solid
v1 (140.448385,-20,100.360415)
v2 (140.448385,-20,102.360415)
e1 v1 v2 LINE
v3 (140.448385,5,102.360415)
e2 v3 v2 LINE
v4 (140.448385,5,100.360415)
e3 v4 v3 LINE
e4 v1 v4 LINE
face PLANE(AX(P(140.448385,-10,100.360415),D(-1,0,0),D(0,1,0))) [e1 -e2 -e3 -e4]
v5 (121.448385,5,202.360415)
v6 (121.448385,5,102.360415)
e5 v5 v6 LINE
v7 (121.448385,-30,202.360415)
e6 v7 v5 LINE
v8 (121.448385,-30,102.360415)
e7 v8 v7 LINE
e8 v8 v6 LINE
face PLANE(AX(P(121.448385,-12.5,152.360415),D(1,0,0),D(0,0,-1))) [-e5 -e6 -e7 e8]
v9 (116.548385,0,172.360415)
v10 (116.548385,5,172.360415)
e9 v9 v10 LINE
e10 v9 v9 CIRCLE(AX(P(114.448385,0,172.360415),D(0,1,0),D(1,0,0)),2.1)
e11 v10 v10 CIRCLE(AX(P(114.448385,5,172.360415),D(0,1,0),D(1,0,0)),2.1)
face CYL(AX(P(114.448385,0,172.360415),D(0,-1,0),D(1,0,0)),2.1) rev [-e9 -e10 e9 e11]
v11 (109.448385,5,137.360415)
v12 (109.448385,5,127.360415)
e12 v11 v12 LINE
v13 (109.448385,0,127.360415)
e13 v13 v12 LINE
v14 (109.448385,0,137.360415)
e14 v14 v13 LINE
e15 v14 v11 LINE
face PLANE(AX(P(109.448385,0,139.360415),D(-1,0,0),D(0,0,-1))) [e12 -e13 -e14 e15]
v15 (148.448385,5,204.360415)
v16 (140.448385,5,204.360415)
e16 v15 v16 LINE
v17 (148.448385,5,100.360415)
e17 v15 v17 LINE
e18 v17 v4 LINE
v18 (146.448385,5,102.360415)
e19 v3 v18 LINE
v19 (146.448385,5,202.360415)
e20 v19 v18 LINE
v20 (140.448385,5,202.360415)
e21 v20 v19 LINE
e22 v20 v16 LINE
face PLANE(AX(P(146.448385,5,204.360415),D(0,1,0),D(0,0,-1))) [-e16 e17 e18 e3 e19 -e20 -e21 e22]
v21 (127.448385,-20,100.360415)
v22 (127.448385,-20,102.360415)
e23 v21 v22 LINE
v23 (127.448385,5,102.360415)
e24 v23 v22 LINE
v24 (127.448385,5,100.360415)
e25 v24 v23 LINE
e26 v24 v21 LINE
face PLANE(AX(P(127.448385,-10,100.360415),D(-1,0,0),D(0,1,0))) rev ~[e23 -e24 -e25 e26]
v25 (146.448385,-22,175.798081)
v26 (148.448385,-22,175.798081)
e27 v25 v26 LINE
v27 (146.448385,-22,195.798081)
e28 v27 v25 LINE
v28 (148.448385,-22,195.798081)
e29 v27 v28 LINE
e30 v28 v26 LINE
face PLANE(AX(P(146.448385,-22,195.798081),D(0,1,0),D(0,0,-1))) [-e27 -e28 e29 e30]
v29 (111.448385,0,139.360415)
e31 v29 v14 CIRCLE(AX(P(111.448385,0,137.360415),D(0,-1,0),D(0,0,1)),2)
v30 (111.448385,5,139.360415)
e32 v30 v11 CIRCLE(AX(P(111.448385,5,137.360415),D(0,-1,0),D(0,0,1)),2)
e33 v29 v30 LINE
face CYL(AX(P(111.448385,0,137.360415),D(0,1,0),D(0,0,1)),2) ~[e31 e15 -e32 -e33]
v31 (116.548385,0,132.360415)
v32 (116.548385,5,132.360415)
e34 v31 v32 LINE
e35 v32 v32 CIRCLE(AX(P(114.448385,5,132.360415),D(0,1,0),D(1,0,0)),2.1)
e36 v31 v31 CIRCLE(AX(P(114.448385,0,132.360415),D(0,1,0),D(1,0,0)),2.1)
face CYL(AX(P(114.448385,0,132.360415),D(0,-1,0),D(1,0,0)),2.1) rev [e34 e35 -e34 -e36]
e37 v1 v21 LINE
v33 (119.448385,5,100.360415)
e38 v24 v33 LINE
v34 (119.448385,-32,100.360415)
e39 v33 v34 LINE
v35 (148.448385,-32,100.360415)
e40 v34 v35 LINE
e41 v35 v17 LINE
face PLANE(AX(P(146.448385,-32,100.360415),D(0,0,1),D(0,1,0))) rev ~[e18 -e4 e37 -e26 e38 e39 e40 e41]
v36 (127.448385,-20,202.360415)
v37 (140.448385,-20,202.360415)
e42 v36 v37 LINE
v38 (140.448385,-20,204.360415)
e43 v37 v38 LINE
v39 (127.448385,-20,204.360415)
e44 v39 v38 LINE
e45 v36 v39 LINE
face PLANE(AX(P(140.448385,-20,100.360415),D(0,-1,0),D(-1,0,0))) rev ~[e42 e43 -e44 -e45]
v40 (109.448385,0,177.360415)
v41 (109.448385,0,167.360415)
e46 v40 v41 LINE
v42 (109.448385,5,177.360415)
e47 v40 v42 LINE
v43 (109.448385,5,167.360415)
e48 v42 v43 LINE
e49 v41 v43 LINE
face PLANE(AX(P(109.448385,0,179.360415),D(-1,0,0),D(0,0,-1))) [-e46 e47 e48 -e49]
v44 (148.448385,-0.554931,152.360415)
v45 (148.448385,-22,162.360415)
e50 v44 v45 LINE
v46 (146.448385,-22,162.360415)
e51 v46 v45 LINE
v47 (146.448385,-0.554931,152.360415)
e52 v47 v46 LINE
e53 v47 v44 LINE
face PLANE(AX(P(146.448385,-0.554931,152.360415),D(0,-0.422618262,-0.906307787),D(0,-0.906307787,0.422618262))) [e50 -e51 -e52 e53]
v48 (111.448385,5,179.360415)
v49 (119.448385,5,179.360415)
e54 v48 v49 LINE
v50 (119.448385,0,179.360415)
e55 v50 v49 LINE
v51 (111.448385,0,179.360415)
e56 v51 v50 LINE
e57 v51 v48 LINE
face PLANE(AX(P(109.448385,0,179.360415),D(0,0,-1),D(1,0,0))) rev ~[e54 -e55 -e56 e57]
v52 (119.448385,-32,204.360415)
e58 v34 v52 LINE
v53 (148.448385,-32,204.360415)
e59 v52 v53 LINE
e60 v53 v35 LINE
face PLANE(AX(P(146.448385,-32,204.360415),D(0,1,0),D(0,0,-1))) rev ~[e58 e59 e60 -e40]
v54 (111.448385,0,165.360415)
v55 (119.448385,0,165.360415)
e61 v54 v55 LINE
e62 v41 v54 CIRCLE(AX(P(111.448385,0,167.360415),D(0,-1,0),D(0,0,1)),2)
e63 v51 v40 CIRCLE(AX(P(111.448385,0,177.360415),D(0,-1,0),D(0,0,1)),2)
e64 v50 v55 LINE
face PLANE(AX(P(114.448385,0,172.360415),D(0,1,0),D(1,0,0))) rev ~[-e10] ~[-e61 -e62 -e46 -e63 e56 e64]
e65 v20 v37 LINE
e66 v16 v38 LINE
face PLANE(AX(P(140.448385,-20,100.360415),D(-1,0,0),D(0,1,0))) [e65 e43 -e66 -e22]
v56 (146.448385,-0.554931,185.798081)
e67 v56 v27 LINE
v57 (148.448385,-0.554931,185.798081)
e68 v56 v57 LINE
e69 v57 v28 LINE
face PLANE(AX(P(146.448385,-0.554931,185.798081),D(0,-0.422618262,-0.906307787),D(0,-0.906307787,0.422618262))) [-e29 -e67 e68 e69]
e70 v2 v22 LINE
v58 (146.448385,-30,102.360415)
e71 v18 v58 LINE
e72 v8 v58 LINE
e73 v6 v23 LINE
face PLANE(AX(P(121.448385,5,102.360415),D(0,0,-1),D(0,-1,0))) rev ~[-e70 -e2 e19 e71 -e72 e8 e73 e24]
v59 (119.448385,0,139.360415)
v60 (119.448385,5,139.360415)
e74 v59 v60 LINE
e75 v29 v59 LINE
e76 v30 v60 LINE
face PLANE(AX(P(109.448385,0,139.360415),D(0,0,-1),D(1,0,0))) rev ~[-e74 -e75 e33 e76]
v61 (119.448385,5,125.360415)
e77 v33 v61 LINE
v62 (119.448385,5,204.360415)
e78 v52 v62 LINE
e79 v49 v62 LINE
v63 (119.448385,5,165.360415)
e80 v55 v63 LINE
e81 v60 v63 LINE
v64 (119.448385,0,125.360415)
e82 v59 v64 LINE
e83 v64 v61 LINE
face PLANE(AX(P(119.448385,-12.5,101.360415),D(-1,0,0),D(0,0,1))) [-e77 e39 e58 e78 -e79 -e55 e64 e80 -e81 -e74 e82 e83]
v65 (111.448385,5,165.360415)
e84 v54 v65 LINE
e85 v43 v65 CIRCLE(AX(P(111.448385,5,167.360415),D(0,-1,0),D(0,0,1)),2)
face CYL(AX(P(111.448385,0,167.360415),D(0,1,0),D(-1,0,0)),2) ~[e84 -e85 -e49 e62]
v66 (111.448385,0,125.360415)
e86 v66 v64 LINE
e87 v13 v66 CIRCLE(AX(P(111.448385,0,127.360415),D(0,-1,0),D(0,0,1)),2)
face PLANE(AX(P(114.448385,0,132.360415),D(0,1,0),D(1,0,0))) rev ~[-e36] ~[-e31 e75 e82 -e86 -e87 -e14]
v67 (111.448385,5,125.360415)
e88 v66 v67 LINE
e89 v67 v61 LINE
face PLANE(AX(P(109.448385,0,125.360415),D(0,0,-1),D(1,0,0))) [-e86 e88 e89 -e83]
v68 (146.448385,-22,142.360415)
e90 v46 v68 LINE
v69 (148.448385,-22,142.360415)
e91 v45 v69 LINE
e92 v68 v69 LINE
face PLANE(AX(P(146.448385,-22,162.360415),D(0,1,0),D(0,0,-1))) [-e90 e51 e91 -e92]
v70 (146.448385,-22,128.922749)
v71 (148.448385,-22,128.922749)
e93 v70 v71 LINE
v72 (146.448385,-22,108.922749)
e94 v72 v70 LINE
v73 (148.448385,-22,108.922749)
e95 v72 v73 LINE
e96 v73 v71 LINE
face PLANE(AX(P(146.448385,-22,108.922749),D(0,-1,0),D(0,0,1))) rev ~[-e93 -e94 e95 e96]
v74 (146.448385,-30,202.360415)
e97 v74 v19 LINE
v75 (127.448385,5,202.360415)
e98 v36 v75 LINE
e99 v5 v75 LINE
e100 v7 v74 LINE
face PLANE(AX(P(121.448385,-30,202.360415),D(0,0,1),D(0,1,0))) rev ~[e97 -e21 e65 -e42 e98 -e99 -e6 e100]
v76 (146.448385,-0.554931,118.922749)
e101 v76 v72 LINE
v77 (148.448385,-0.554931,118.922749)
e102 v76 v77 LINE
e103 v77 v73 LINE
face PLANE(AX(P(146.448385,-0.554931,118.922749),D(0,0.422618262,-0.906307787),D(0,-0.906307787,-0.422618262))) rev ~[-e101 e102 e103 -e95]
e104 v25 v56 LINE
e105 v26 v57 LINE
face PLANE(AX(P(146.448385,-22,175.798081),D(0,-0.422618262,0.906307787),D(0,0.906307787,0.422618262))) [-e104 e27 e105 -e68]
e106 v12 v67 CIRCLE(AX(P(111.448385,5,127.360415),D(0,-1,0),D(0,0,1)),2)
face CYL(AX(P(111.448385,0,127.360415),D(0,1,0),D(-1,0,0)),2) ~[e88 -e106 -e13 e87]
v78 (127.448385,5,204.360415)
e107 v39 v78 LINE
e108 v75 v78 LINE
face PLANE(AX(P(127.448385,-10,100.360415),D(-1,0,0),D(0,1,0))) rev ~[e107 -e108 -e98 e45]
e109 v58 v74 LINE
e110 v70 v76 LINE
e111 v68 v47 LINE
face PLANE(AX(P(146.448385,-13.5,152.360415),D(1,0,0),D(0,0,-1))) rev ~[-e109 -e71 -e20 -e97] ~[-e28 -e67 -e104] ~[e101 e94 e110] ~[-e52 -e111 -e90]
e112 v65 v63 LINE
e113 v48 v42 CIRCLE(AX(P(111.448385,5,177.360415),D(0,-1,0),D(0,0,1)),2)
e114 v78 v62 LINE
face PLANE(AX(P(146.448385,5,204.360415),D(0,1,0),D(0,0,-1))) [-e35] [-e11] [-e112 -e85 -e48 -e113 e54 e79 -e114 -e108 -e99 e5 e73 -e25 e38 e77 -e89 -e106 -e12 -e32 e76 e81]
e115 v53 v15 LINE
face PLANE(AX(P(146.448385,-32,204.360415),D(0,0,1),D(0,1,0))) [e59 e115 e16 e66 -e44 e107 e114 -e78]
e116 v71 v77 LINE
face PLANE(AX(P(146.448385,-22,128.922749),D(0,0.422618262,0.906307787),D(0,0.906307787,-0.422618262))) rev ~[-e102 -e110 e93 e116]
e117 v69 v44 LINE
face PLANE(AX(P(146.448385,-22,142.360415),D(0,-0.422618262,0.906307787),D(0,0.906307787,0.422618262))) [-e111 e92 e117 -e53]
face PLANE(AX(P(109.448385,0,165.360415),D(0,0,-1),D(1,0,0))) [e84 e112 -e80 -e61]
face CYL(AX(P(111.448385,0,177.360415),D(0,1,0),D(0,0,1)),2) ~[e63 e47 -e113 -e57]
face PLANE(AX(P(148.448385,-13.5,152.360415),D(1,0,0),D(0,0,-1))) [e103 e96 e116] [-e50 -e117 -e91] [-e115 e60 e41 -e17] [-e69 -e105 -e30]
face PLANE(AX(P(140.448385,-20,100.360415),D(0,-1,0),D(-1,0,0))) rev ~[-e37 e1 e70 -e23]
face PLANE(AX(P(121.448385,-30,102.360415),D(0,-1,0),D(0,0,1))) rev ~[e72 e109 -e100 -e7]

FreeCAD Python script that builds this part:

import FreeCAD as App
import Part
import Sketcher
from FreeCAD import Vector
Q = App.Units.Quantity


def edges_at(feature, points):
    """Names of the edges that pass closest to the given points."""
    edges = feature.Shape.Edges
    near = lambda p: min(range(len(edges)), key=lambda i: edges[i].distToShape(Part.Vertex(*p))[0])
    return sorted({f"Edge{near(p) + 1}" for p in points})


def add_polygon(sketch, points):
    """Adds a closed chain of lines whose ends are joined by coincident constraints."""
    first, n = sketch.GeometryCount, len(points)
    for a, b in zip(points, points[1:] + points[:1]):
        sketch.addGeometry(Part.LineSegment(App.Vector(*a, 0), App.Vector(*b, 0)), False)
    for i in range(n):
        sketch.addConstraint(Sketcher.Constraint("Coincident", first + i, 2, first + (i + 1) % n, 1))

doc = App.newDocument("Part")
body = doc.addObject("PartDesign::Body", "Body")

sketch1 = doc.addObject("Sketcher::SketchObject", "Sketch")
body.addObject(sketch1)
sketch1.AttachmentSupport = (doc.XZ_Plane, [""])
sketch1.MapMode = "FlatFace"
add_polygon(sketch1, [(109.448385, 125.360415), (109.448385, 139.360415), (119.448385, 139.360415), (119.448385, 125.360415)])
sketch1.addGeometry(Part.Circle(Vector(114.448385, 132.360415, 0), Vector(0, 0, 1), 2.1), False)
sketch1.addConstraint(Sketcher.Constraint("Vertical", 0))
sketch1.addConstraint(Sketcher.Constraint("Horizontal", 1))
sketch1.addConstraint(Sketcher.Constraint("Vertical", 2))
sketch1.addConstraint(Sketcher.Constraint("Horizontal", 3))
sketch1.addConstraint(Sketcher.Constraint("Diameter", 4, Q("4.2 mm")))
sketch1.addConstraint(Sketcher.Constraint("DistanceX", 1, 1, 1, 2, Q("10 mm")))
sketch1.addConstraint(Sketcher.Constraint("DistanceY", 0, 1, 0, 2, Q("14 mm")))
sketch1.addConstraint(Sketcher.Constraint("DistanceX", 0, 2, 4, 3, Q("5 mm")))
sketch1.addConstraint(Sketcher.Constraint("DistanceY", 4, 3, 0, 2, Q("7 mm")))
sketch1.addConstraint(Sketcher.Constraint("DistanceX", -1, 1, 4, 3, Q("114.448385 mm")))
sketch1.addConstraint(Sketcher.Constraint("DistanceY", -1, 1, 4, 3, Q("132.360415 mm")))
pad1 = doc.addObject("PartDesign::Pad", "Pad")
body.addObject(pad1)
pad1.Profile = sketch1
pad1.Length = 5
pad1.Reversed = True
body2 = doc.addObject("PartDesign::Body", "Body001")

sketch2 = doc.addObject("Sketcher::SketchObject", "Sketch001")
body2.addObject(sketch2)
sketch2.AttachmentSupport = (doc.getObject("XZ_Plane001"), [""])
sketch2.MapMode = "FlatFace"
add_polygon(sketch2, [(109.448385, 165.360415), (109.448385, 179.360415), (119.448385, 179.360415), (119.448385, 165.360415)])
sketch2.addGeometry(Part.Circle(Vector(114.448385, 172.360415, 0), Vector(0, 0, 1), 2.1), False)
sketch2.addConstraint(Sketcher.Constraint("Vertical", 0))
sketch2.addConstraint(Sketcher.Constraint("Horizontal", 1))
sketch2.addConstraint(Sketcher.Constraint("Vertical", 2))
sketch2.addConstraint(Sketcher.Constraint("Horizontal", 3))
sketch2.addConstraint(Sketcher.Constraint("Diameter", 4, Q("4.2 mm")))
sketch2.addConstraint(Sketcher.Constraint("DistanceX", 1, 1, 1, 2, Q("10 mm")))
sketch2.addConstraint(Sketcher.Constraint("DistanceY", 0, 1, 0, 2, Q("14 mm")))
sketch2.addConstraint(Sketcher.Constraint("DistanceX", 0, 2, 4, 3, Q("5 mm")))
sketch2.addConstraint(Sketcher.Constraint("DistanceY", 4, 3, 0, 2, Q("7 mm")))
sketch2.addConstraint(Sketcher.Constraint("DistanceX", -1, 1, 4, 3, Q("114.448385 mm")))
sketch2.addConstraint(Sketcher.Constraint("DistanceY", -1, 1, 4, 3, Q("172.360415 mm")))
pad2 = doc.addObject("PartDesign::Pad", "Pad001")
body2.addObject(pad2)
pad2.Profile = sketch2
pad2.Length = 5
pad2.Reversed = True
body.AllowCompound = True
doc.recompute()

boolean = doc.addObject("PartDesign::Boolean", "Boolean")
body.addObject(boolean)
boolean.Type = "Fuse"
boolean.addObjects([body2])

sketch3 = doc.addObject("Sketcher::SketchObject", "Sketch002")
body.addObject(sketch3)
sketch3.AttachmentSupport = (doc.YZ_Plane, [""])
sketch3.MapMode = "FlatFace"
sketch3.AttachmentOffset = App.Placement(Vector(0, 0, 119.448385), App.Rotation())
add_polygon(sketch3, [(5, 196.860415), (-34, 196.860415), (-34, 107.860415), (5, 107.860415)])
sketch3.addConstraint(Sketcher.Constraint("Horizontal", 0))
sketch3.addConstraint(Sketcher.Constraint("Vertical", 1))
sketch3.addConstraint(Sketcher.Constraint("Horizontal", 2))
sketch3.addConstraint(Sketcher.Constraint("Vertical", 3))
sketch3.addConstraint(Sketcher.Constraint("DistanceX", 0, 2, 0, 1, Q("39 mm")))
sketch3.addConstraint(Sketcher.Constraint("DistanceY", 1, 2, 1, 1, Q("89 mm")))
sketch3.addConstraint(Sketcher.Constraint("DistanceX", 0, 2, -1, 1, Q("34 mm")))
sketch3.addConstraint(Sketcher.Constraint("DistanceY", -1, 1, 0, 2, Q("196.860415 mm")))
pad3 = doc.addObject("PartDesign::Pad", "Pad002")
body.addObject(pad3)
pad3.Profile = sketch3
pad3.Length = 2

sketch4 = doc.addObject("Sketcher::SketchObject", "Sketch003")
body.addObject(sketch4)
sketch4.AttachmentSupport = (doc.YZ_Plane, [""])
sketch4.MapMode = "FlatFace"
sketch4.AttachmentOffset = App.Placement(Vector(0, 0, 121.448385), App.Rotation())
add_polygon(sketch4, [(5, 194.860415), (5, 196.860415), (-34, 196.860415), (-34, 107.860415), (5, 107.860415), (5, 109.860415), (-32, 109.860415), (-32, 194.860415)])
sketch4.addConstraint(Sketcher.Constraint("Vertical", 0))
sketch4.addConstraint(Sketcher.Constraint("Horizontal", 1))
sketch4.addConstraint(Sketcher.Constraint("Vertical", 2))
sketch4.addConstraint(Sketcher.Constraint("Horizontal", 3))
sketch4.addConstraint(Sketcher.Constraint("Vertical", 4))
sketch4.addConstraint(Sketcher.Constraint("Horizontal", 5))
sketch4.addConstraint(Sketcher.Constraint("Vertical", 6))
sketch4.addConstraint(Sketcher.Constraint("Horizontal", 7))
sketch4.addConstraint(Sketcher.Constraint("Vertical", 0, 2, 3, 2))
sketch4.addConstraint(Sketcher.Constraint("Equal", 0, 4))
sketch4.addConstraint(Sketcher.Constraint("DistanceX", 1, 2, 1, 1, Q("39 mm")))
sketch4.addConstraint(Sketcher.Constraint("DistanceX", 5, 2, 5, 1, Q("37 mm")))
sketch4.addConstraint(Sketcher.Constraint("DistanceY", 0, 1, 0, 2, Q("2 mm")))
sketch4.addConstraint(Sketcher.Constraint("DistanceY", 2, 2, 2, 1, Q("89 mm")))
sketch4.addConstraint(Sketcher.Constraint("DistanceX", -1, 1, 0, 2, Q("5 mm")))
sketch4.addConstraint(Sketcher.Constraint("DistanceY", -1, 1, 0, 2, Q("196.860415 mm")))
pad4 = doc.addObject("PartDesign::Pad", "Pad003")
body.addObject(pad4)
pad4.Profile = sketch4
pad4.Length = 32

sketch5 = doc.addObject("Sketcher::SketchObject", "Sketch004")
body.addObject(sketch5)
sketch5.AttachmentSupport = (doc.XZ_Plane, [""])
sketch5.MapMode = "FlatFace"
sketch5.AttachmentOffset = App.Placement(Vector(0, 0, 32), App.Rotation())
add_polygon(sketch5, [(151.448385, 109.860415), (151.448385, 194.860415), (153.448385, 194.860415), (153.448385, 109.860415)])
sketch5.addConstraint(Sketcher.Constraint("Vertical", 0))
sketch5.addConstraint(Sketcher.Constraint("Horizontal", 1))
sketch5.addConstraint(Sketcher.Constraint("Vertical", 2))
sketch5.addConstraint(Sketcher.Constraint("Horizontal", 3))
sketch5.addConstraint(Sketcher.Constraint("DistanceX", 1, 1, 1, 2, Q("2 mm")))
sketch5.addConstraint(Sketcher.Constraint("DistanceY", 0, 1, 0, 2, Q("85 mm")))
sketch5.addConstraint(Sketcher.Constraint("DistanceX", -1, 1, 0, 2, Q("151.448385 mm")))
sketch5.addConstraint(Sketcher.Constraint("DistanceY", -1, 1, 0, 2, Q("194.860415 mm")))
pad5 = doc.addObject("PartDesign::Pad", "Pad004")
body.addObject(pad5)
pad5.Profile = sketch5
pad5.Length = 37
pad5.Reversed = True

sketch6 = doc.addObject("Sketcher::SketchObject", "Sketch005")
body.addObject(sketch6)
sketch6.AttachmentSupport = (doc.XY_Plane, [""])
sketch6.MapMode = "FlatFace"
sketch6.AttachmentOffset = App.Placement(Vector(0, 0, 196.860415), App.Rotation())
add_polygon(sketch6, [(129.448385, 5), (129.448385, -25), (143.448385, -25), (143.448385, 5)])
sketch6.addConstraint(Sketcher.Constraint("Vertical", 0))
sketch6.addConstraint(Sketcher.Constraint("Horizontal", 1))
sketch6.addConstraint(Sketcher.Constraint("Vertical", 2))
sketch6.addConstraint(Sketcher.Constraint("Horizontal", 3))
sketch6.addConstraint(Sketcher.Constraint("DistanceX", 1, 1, 1, 2, Q("14 mm")))
sketch6.addConstraint(Sketcher.Constraint("DistanceY", 0, 2, 0, 1, Q("30 mm")))
sketch6.addConstraint(Sketcher.Constraint("DistanceY", 0, 2, -1, 1, Q("25 mm")))
sketch6.addConstraint(Sketcher.Constraint("DistanceX", -1, 1, 0, 2, Q("129.448385 mm")))
pocket1 = doc.addObject("PartDesign::Pocket", "Pocket")
body.addObject(pocket1)
pocket1.Profile = sketch6
pocket1.Length = 200

sketch7 = doc.addObject("Sketcher::SketchObject", "Sketch006")
body.addObject(sketch7)
sketch7.AttachmentSupport = (doc.YZ_Plane, [""])
sketch7.MapMode = "FlatFace"
sketch7.AttachmentOffset = App.Placement(Vector(0, 0, 153.448385), App.Rotation())
add_polygon(sketch7, [(-4.5, 189.360415), (-24.5, 189.360415), (-24.5, 169.360415), (-4.5, 169.360415)])
add_polygon(sketch7, [(-4.5, 162.360415), (-24.5, 162.360415), (-24.5, 142.360415), (-4.5, 142.360415)])
add_polygon(sketch7, [(-4.5, 135.360415), (-24.5, 135.360415), (-24.5, 115.360415), (-4.5, 115.360415)])
sketch7.addConstraint(Sketcher.Constraint("Horizontal", 0))
sketch7.addConstraint(Sketcher.Constraint("Vertical", 1))
sketch7.addConstraint(Sketcher.Constraint("Horizontal", 2))
sketch7.addConstraint(Sketcher.Constraint("Vertical", 3))
sketch7.addConstraint(Sketcher.Constraint("Horizontal", 4))
sketch7.addConstraint(Sketcher.Constraint("Vertical", 5))
sketch7.addConstraint(Sketcher.Constraint("Horizontal", 6))
sketch7.addConstraint(Sketcher.Constraint("Vertical", 7))
sketch7.addConstraint(Sketcher.Constraint("Horizontal", 8))
sketch7.addConstraint(Sketcher.Constraint("Vertical", 9))
sketch7.addConstraint(Sketcher.Constraint("Horizontal", 10))
sketch7.addConstraint(Sketcher.Constraint("Vertical", 11))
sketch7.addConstraint(Sketcher.Constraint("Vertical", 1, 2, 4, 2))
sketch7.addConstraint(Sketcher.Constraint("Vertical", 3, 2, 6, 2))
sketch7.addConstraint(Sketcher.Constraint("Vertical", 5, 2, 8, 2))
sketch7.addConstraint(Sketcher.Constraint("Vertical", 7, 2, 10, 2))
sketch7.addConstraint(Sketcher.Constraint("Equal", 10, 1))
sketch7.addConstraint(Sketcher.Constraint("Equal", 3, 5))
sketch7.addConstraint(Sketcher.Constraint("Equal", 7, 9))
sketch7.addConstraint(Sketcher.Constraint("DistanceX", 0, 2, 0, 1, Q("20 mm")))
sketch7.addConstraint(Sketcher.Constraint("DistanceY", 4, 2, 1, 2, Q("7 mm")))
sketch7.addConstraint(Sketcher.Constraint("DistanceY", 8, 2, 5, 2, Q("7 mm")))
sketch7.addConstraint(Sketcher.Constraint("DistanceX", 0, 2, -1, 1, Q("24.5 mm")))
sketch7.addConstraint(Sketcher.Constraint("DistanceY", -1, 1, 0, 2, Q("189.360415 mm")))
pocket2 = doc.addObject("PartDesign::Pocket", "Pocket001")
body.addObject(pocket2)
pocket2.Profile = sketch7
pocket2.Length = 16
doc.recompute()

fillet = doc.addObject("PartDesign::Fillet", "Fillet")
body.addObject(fillet)
fillet.Base = (pocket2, edges_at(pocket2, [
    (109.448, 2.5, 139.36),
    (109.448, 2.5, 125.36),
    (109.448, 2.5, 179.36),
    (109.448, 2.5, 165.36),
]))
fillet.Radius = 2

sketch8 = doc.addObject("Sketcher::SketchObject", "Sketch007")
body.addObject(sketch8)
sketch8.AttachmentSupport = (doc.YZ_Plane, [""])
sketch8.MapMode = "FlatFace"
sketch8.AttachmentOffset = App.Placement(Vector(0, 0, 153.448385), App.Rotation())
add_polygon(sketch8, [(12.468805, 208.388265), (-43.138837, 208.388265), (-43.138837, 88.768805), (12.468805, 88.768805)])
sketch8.addConstraint(Sketcher.Constraint("Horizontal", 0))
sketch8.addConstraint(Sketcher.Constraint("Vertical", 1))
sketch8.addConstraint(Sketcher.Constraint("Horizontal", 2))
sketch8.addConstraint(Sketcher.Constraint("Vertical", 3))
sketch8.addConstraint(Sketcher.Constraint("DistanceX", 0, 2, 0, 1, Q("55.607641 mm")))
sketch8.addConstraint(Sketcher.Constraint("DistanceY", 1, 2, 1, 1, Q("119.619461 mm")))
sketch8.addConstraint(Sketcher.Constraint("DistanceX", 0, 2, -1, 1, Q("43.138837 mm")))
sketch8.addConstraint(Sketcher.Constraint("DistanceY", -1, 1, 0, 2, Q("208.388265 mm")))
pocket3 = doc.addObject("PartDesign::Pocket", "Pocket002")
body.addObject(pocket3)
pocket3.Profile = sketch8
pocket3.Length = 32

sketch9 = doc.addObject("Sketcher::SketchObject", "Sketch008")
body.addObject(sketch9)
sketch9.AttachmentSupport = (doc.YZ_Plane, [""])
sketch9.MapMode = "FlatFace"
sketch9.AttachmentOffset = App.Placement(Vector(0, 0, 121.448385), App.Rotation())
add_polygon(sketch9, [(5, 202.360415), (-30, 202.360415), (-30, 102.360415), (5, 102.360415)])
sketch9.addConstraint(Sketcher.Constraint("Horizontal", 0))
sketch9.addConstraint(Sketcher.Constraint("Vertical", 1))
sketch9.addConstraint(Sketcher.Constraint("Horizontal", 2))
sketch9.addConstraint(Sketcher.Constraint("Vertical", 3))
sketch9.addConstraint(Sketcher.Constraint("DistanceX", 0, 2, 0, 1, Q("35 mm")))
sketch9.addConstraint(Sketcher.Constraint("DistanceY", 1, 2, 1, 1, Q("100 mm")))
sketch9.addConstraint(Sketcher.Constraint("DistanceX", 0, 2, -1, 1, Q("30 mm")))
sketch9.addConstraint(Sketcher.Constraint("DistanceY", -1, 1, 0, 2, Q("202.360415 mm")))
pad6 = doc.addObject("PartDesign::Pad", "Pad005")
body.addObject(pad6)
pad6.Profile = sketch9
pad6.Length = 2
pad6.Reversed = True

sketch10 = doc.addObject("Sketcher::SketchObject", "Sketch009")
body.addObject(sketch10)
sketch10.AttachmentSupport = (doc.YZ_Plane, [""])
sketch10.MapMode = "FlatFace"
sketch10.AttachmentOffset = App.Placement(Vector(0, 0, 121.448385), App.Rotation())
add_polygon(sketch10, [(-30, 196.860415), (-34, 196.860415), (-34, 107.860415), (-30, 107.860415)])
sketch10.addConstraint(Sketcher.Constraint("Horizontal", 0))
sketch10.addConstraint(Sketcher.Constraint("Vertical", 1))
sketch10.addConstraint(Sketcher.Constraint("Horizontal", 2))
sketch10.addConstraint(Sketcher.Constraint("Vertical", 3))
sketch10.addConstraint(Sketcher.Constraint("DistanceX", 0, 2, 0, 1, Q("4 mm")))
sketch10.addConstraint(Sketcher.Constraint("DistanceY", 1, 2, 1, 1, Q("89 mm")))
sketch10.addConstraint(Sketcher.Constraint("DistanceX", 0, 2, -1, 1, Q("34 mm")))
sketch10.addConstraint(Sketcher.Constraint("DistanceY", -1, 1, 0, 2, Q("196.860415 mm")))
pocket4 = doc.addObject("PartDesign::Pocket", "Pocket003")
body.addObject(pocket4)
pocket4.Profile = sketch10
pocket4.Length = 10
body3 = doc.addObject("PartDesign::Body", "Body002")

sketch11 = doc.addObject("Sketcher::SketchObject", "Sketch010")
body3.addObject(sketch11)
sketch11.AttachmentSupport = (doc.getObject("YZ_Plane002"), [""])
sketch11.MapMode = "FlatFace"
sketch11.AttachmentOffset = App.Placement(Vector(0, 0, 121.448385), App.Rotation())
add_polygon(sketch11, [(-30, 202.360415), (5, 202.360415), (5, 204.360415), (-32, 204.360415), (-32, 100.360415), (5, 100.360415), (5, 102.360415), (-30, 102.360415)])
sketch11.addConstraint(Sketcher.Constraint("Horizontal", 0))
sketch11.addConstraint(Sketcher.Constraint("Vertical", 1))
sketch11.addConstraint(Sketcher.Constraint("Horizontal", 2))
sketch11.addConstraint(Sketcher.Constraint("Vertical", 3))
sketch11.addConstraint(Sketcher.Constraint("Horizontal", 4))
sketch11.addConstraint(Sketcher.Constraint("Vertical", 5))
sketch11.addConstraint(Sketcher.Constraint("Horizontal", 6))
sketch11.addConstraint(Sketcher.Constraint("Vertical", 7))
sketch11.addConstraint(Sketcher.Constraint("Vertical", 1, 2, 4, 2))
sketch11.addConstraint(Sketcher.Constraint("Equal", 1, 5))
sketch11.addConstraint(Sketcher.Constraint("DistanceX", 0, 1, 0, 2, Q("35 mm")))
sketch11.addConstraint(Sketcher.Constraint("DistanceX", 2, 2, 2, 1, Q("37 mm")))
sketch11.addConstraint(Sketcher.Constraint("DistanceY", 1, 1, 1, 2, Q("2 mm")))
sketch11.addConstraint(Sketcher.Constraint("DistanceY", 3, 2, 3, 1, Q("104 mm")))
sketch11.addConstraint(Sketcher.Constraint("DistanceX", -1, 1, 0, 2, Q("5 mm")))
sketch11.addConstraint(Sketcher.Constraint("DistanceY", -1, 1, 0, 2, Q("202.360415 mm")))
pad7 = doc.addObject("PartDesign::Pad", "Pad006")
body3.addObject(pad7)
pad7.Profile = sketch11
pad7.Length = 25
body.AllowCompound = True
doc.recompute()

boolean2 = doc.addObject("PartDesign::Boolean", "Boolean001")
body.addObject(boolean2)
boolean2.Type = "Fuse"
boolean2.addObjects([body3])

sketch12 = doc.addObject("Sketcher::SketchObject", "Sketch011")
body.addObject(sketch12)
sketch12.AttachmentSupport = (doc.YZ_Plane, [""])
sketch12.MapMode = "FlatFace"
sketch12.AttachmentOffset = App.Placement(Vector(0, 0, 121.448385), App.Rotation())
add_polygon(sketch12, [(5, 100.360415), (-32, 100.360415), (-32, 204.360415), (5, 204.360415), (5, 202.360415), (-30, 202.360415), (-30, 102.360415), (5, 102.360415)])
sketch12.addConstraint(Sketcher.Constraint("Horizontal", 0))
sketch12.addConstraint(Sketcher.Constraint("Vertical", 1))
sketch12.addConstraint(Sketcher.Constraint("Horizontal", 2))
sketch12.addConstraint(Sketcher.Constraint("Vertical", 3))
sketch12.addConstraint(Sketcher.Constraint("Horizontal", 4))
sketch12.addConstraint(Sketcher.Constraint("Vertical", 5))
sketch12.addConstraint(Sketcher.Constraint("Horizontal", 6))
sketch12.addConstraint(Sketcher.Constraint("Vertical", 7))
sketch12.addConstraint(Sketcher.Constraint("Vertical", 3, 2, 6, 2))
sketch12.addConstraint(Sketcher.Constraint("Equal", 3, 7))
sketch12.addConstraint(Sketcher.Constraint("DistanceX", 0, 2, 0, 1, Q("37 mm")))
sketch12.addConstraint(Sketcher.Constraint("DistanceX", 4, 2, 4, 1, Q("35 mm")))
sketch12.addConstraint(Sketcher.Constraint("DistanceY", 1, 1, 1, 2, Q("104 mm")))
sketch12.addConstraint(Sketcher.Constraint("DistanceY", 3, 2, 3, 1, Q("2 mm")))
sketch12.addConstraint(Sketcher.Constraint("DistanceX", 0, 2, -1, 1, Q("32 mm")))
sketch12.addConstraint(Sketcher.Constraint("DistanceY", -1, 1, 0, 2, Q("100.360415 mm")))
pad8 = doc.addObject("PartDesign::Pad", "Pad007")
body.addObject(pad8)
pad8.Profile = sketch12
pad8.Length = 2
pad8.Reversed = True

sketch13 = doc.addObject("Sketcher::SketchObject", "Sketch012")
body.addObject(sketch13)
sketch13.AttachmentSupport = (doc.YZ_Plane, [""])
sketch13.MapMode = "FlatFace"
sketch13.AttachmentOffset = App.Placement(Vector(0, 0, 146.448385), App.Rotation())
add_polygon(sketch13, [(5, 204.360415), (-32, 204.360415), (-32, 100.360415), (5, 100.360415)])
add_polygon(sketch13, [(-22, 175.798081), (-22, 195.798081), (-0.554931, 185.798081)])
add_polygon(sketch13, [(-22, 142.360415), (-22, 162.360415), (-0.554931, 152.360415)])
add_polygon(sketch13, [(-22, 108.922749), (-22, 128.922749), (-0.554931, 118.922749)])
sketch13.addConstraint(Sketcher.Constraint("Horizontal", 0))
sketch13.addConstraint(Sketcher.Constraint("Vertical", 1))
sketch13.addConstraint(Sketcher.Constraint("Horizontal", 2))
sketch13.addConstraint(Sketcher.Constraint("Vertical", 3))
sketch13.addConstraint(Sketcher.Constraint("Vertical", 4))
sketch13.addConstraint(Sketcher.Constraint("Vertical", 7))
sketch13.addConstraint(Sketcher.Constraint("Vertical", 10))
sketch13.addConstraint(Sketcher.Constraint("Parallel", 5, 8))
sketch13.addConstraint(Sketcher.Constraint("Parallel", 6, 9))
sketch13.addConstraint(Sketcher.Constraint("Parallel", 8, 11))
sketch13.addConstraint(Sketcher.Constraint("Parallel", 9, 12))
sketch13.addConstraint(Sketcher.Constraint("Vertical", 6, 2, 7, 2))
sketch13.addConstraint(Sketcher.Constraint("Vertical", 5, 2, 8, 2))
sketch13.addConstraint(Sketcher.Constraint("Vertical", 9, 2, 10, 2))
sketch13.addConstraint(Sketcher.Constraint("Vertical", 8, 2, 11, 2))
sketch13.addConstraint(Sketcher.Constraint("Equal", 5, 6))
sketch13.addConstraint(Sketcher.Constraint("DistanceX", 0, 2, 0, 1, Q("37 mm")))
sketch13.addConstraint(Sketcher.Constraint("DistanceY", 1, 2, 1, 1, Q("104 mm")))
sketch13.addConstraint(Sketcher.Constraint("DistanceY", 4, 1, 4, 2, Q("20 mm")))
sketch13.addConstraint(Sketcher.Constraint("Angle", 5, Q("-25 deg")))
sketch13.addConstraint(Sketcher.Constraint("DistanceX", 0, 2, -1, 1, Q("32 mm")))
sketch13.addConstraint(Sketcher.Constraint("DistanceX", 4, 2, -1, 1, Q("22 mm")))
sketch13.addConstraint(Sketcher.Constraint("DistanceY", 7, 2, 0, 2, Q("42 mm")))
sketch13.addConstraint(Sketcher.Constraint("DistanceY", -1, 1, 4, 2, Q("195.798081 mm")))
sketch13.addConstraint(Sketcher.Constraint("DistanceY", -1, 1, 10, 2, Q("128.922749 mm")))
sketch13.addConstraint(Sketcher.Constraint("DistanceY", -1, 1, 0, 2, Q("204.360415 mm")))
pad9 = doc.addObject("PartDesign::Pad", "Pad008")
body.addObject(pad9)
pad9.Profile = sketch13
pad9.Length = 2

sketch14 = doc.addObject("Sketcher::SketchObject", "Sketch013")
body.addObject(sketch14)
sketch14.AttachmentSupport = (doc.XY_Plane, [""])
sketch14.MapMode = "FlatFace"
sketch14.AttachmentOffset = App.Placement(Vector(0, 0, 100.360415), App.Rotation())
add_polygon(sketch14, [(140.448385, 20), (140.448385, -10), (127.448385, -10), (127.448385, 20)])
sketch14.addConstraint(Sketcher.Constraint("Vertical", 0))
sketch14.addConstraint(Sketcher.Constraint("Horizontal", 1))
sketch14.addConstraint(Sketcher.Constraint("Vertical", 2))
sketch14.addConstraint(Sketcher.Constraint("Horizontal", 3))
sketch14.addConstraint(Sketcher.Constraint("DistanceX", 1, 2, 1, 1, Q("13 mm")))
sketch14.addConstraint(Sketcher.Constraint("DistanceY", 0, 2, 0, 1, Q("30 mm")))
sketch14.addConstraint(Sketcher.Constraint("DistanceY", 0, 2, -1, 1, Q("10 mm")))
sketch14.addConstraint(Sketcher.Constraint("DistanceX", -1, 1, 0, 2, Q("140.448385 mm")))
pocket5 = doc.addObject("PartDesign::Pocket", "Pocket004")
body.addObject(pocket5)
pocket5.Profile = sketch14
pocket5.Length = 104
pocket5.Reversed = True

sketch15 = doc.addObject("Sketcher::SketchObject", "Sketch014")
body.addObject(sketch15)
sketch15.AttachmentSupport = (doc.XY_Plane, [""])
sketch15.MapMode = "FlatFace"
sketch15.AttachmentOffset = App.Placement(Vector(0, 0, 100.360415), App.Rotation())
add_polygon(sketch15, [(140.448385, 5), (140.448385, -20), (127.448385, -20), (127.448385, 5)])
sketch15.addConstraint(Sketcher.Constraint("Vertical", 0))
sketch15.addConstraint(Sketcher.Constraint("Horizontal", 1))
sketch15.addConstraint(Sketcher.Constraint("Vertical", 2))
sketch15.addConstraint(Sketcher.Constraint("Horizontal", 3))
sketch15.addConstraint(Sketcher.Constraint("DistanceX", 1, 2, 1, 1, Q("13 mm")))
sketch15.addConstraint(Sketcher.Constraint("DistanceY", 0, 2, 0, 1, Q("25 mm")))
sketch15.addConstraint(Sketcher.Constraint("DistanceY", 0, 2, -1, 1, Q("20 mm")))
sketch15.addConstraint(Sketcher.Constraint("DistanceX", -1, 1, 0, 2, Q("140.448385 mm")))
pocket6 = doc.addObject("PartDesign::Pocket", "Pocket005")
body.addObject(pocket6)
pocket6.Profile = sketch15
pocket6.Length = 120
pocket6.Reversed = True

doc.recompute()
